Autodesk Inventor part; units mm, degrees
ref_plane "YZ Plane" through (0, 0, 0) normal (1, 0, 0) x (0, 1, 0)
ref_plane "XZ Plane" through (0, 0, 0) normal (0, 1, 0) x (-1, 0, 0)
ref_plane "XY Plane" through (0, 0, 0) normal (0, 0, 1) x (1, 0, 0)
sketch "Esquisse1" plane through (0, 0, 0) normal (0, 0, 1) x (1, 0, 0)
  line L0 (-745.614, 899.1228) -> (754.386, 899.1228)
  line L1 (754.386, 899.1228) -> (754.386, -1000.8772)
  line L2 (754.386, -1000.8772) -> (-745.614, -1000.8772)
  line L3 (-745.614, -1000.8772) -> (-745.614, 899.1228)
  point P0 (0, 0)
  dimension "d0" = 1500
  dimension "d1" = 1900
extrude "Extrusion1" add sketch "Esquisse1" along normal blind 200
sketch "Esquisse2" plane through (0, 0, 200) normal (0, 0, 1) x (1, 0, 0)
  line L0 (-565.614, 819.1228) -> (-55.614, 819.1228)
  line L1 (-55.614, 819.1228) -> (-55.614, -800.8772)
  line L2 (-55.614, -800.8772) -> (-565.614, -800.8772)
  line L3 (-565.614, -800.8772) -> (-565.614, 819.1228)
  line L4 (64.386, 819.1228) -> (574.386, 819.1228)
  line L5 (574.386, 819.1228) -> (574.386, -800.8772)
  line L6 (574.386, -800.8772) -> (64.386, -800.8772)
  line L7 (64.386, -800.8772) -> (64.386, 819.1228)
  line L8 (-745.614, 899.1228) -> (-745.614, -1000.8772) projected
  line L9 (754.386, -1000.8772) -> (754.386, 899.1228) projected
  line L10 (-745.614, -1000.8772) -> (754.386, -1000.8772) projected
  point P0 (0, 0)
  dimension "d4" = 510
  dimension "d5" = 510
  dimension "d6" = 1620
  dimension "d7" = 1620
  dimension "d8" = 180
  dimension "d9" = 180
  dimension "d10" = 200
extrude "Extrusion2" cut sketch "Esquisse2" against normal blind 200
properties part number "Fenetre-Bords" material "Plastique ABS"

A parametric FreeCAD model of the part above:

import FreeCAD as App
import Part
import Sketcher

V = App.Vector
Q = App.Units.Quantity

doc = App.newDocument("Part")
body = doc.addObject("PartDesign::Body", "Body")

# Sketch on XY plane
sketch1 = body.newObject("Sketcher::SketchObject", "Sketch")
sketch1.AttachmentSupport = (doc.getObject("XY_Plane"), [""])
sketch1.MapMode = "FlatFace"
sketch1.addGeometry([
    Part.LineSegment(V(754, 899, 0), V(-746, 899, 0)),
    Part.LineSegment(V(-746, 899, 0), V(-746, -1001, 0)),
    Part.LineSegment(V(-746, -1001, 0), V(754, -1001, 0)),
    Part.LineSegment(V(754, -1001, 0), V(754, 899, 0)),
], False)
sketch1.addConstraint([
    Sketcher.Constraint("Coincident", 0, 2, 1, 1),
    Sketcher.Constraint("Coincident", 1, 2, 2, 1),
    Sketcher.Constraint("Coincident", 2, 2, 3, 1),
    Sketcher.Constraint("Coincident", 3, 2, 0, 1),
    Sketcher.Constraint("Horizontal", 0),
    Sketcher.Constraint("Vertical", 1),
    Sketcher.Constraint("Horizontal", 2),
    Sketcher.Constraint("Vertical", 3),
    Sketcher.Constraint("DistanceX", 0, 2, 0, 1, Q("1500 mm")),
    Sketcher.Constraint("DistanceY", 1, 2, 1, 1, Q("1900 mm")),
    Sketcher.Constraint("DistanceX", 0, 2, -1, 1, Q("745.614 mm")),
    Sketcher.Constraint("DistanceY", -1, 1, 0, 2, Q("899.1228 mm")),
])
pad1 = body.newObject("PartDesign::Pad", "Pad")
pad1.Profile = sketch1
pad1.Length = 200

# Sketch on XY plane
sketch2 = body.newObject("Sketcher::SketchObject", "Sketch001")
sketch2.AttachmentSupport = (doc.getObject("XY_Plane"), [""])
sketch2.MapMode = "FlatFace"
sketch2.AttachmentOffset = App.Placement(V(0, 0, 200), App.Rotation())
sketch2.addGeometry([
    Part.LineSegment(V(-56, 819, 0), V(-566, 819, 0)),  # 0
    Part.LineSegment(V(-566, 819, 0), V(-566, -801, 0)),  # 1
    Part.LineSegment(V(-566, -801, 0), V(-56, -801, 0)),  # 2
    Part.LineSegment(V(-56, -801, 0), V(-56, 819, 0)),  # 3
    Part.LineSegment(V(574, 819, 0), V(64, 819, 0)),  # 4
    Part.LineSegment(V(64, 819, 0), V(64, -801, 0)),  # 5
    Part.LineSegment(V(64, -801, 0), V(574, -801, 0)),  # 6
    Part.LineSegment(V(574, -801, 0), V(574, 819, 0)),  # 7
], False)
sketch2.addConstraint([
    Sketcher.Constraint("Coincident", 0, 2, 1, 1),
    Sketcher.Constraint("Coincident", 1, 2, 2, 1),
    Sketcher.Constraint("Coincident", 2, 2, 3, 1),
    Sketcher.Constraint("Coincident", 3, 2, 0, 1),
    Sketcher.Constraint("Coincident", 4, 2, 5, 1),
    Sketcher.Constraint("Coincident", 5, 2, 6, 1),
    Sketcher.Constraint("Coincident", 6, 2, 7, 1),
    Sketcher.Constraint("Coincident", 7, 2, 4, 1),
    Sketcher.Constraint("Horizontal", 0),
    Sketcher.Constraint("Vertical", 1),
    Sketcher.Constraint("Horizontal", 2),
    Sketcher.Constraint("Vertical", 3),
    Sketcher.Constraint("Horizontal", 4),
    Sketcher.Constraint("Vertical", 5),
    Sketcher.Constraint("Horizontal", 6),
    Sketcher.Constraint("Vertical", 7),
    Sketcher.Constraint("Horizontal", 3, 2, 4, 2),
    Sketcher.Constraint("Horizontal", 2, 2, 5, 2),
    Sketcher.Constraint("Equal", 2, 4),
    Sketcher.Constraint("DistanceX", 0, 2, 0, 1, Q("510 mm")),
    Sketcher.Constraint("DistanceY", 1, 2, 1, 1, Q("1620 mm")),
    Sketcher.Constraint("DistanceX", 3, 2, 4, 2, Q("120 mm")),
    Sketcher.Constraint("DistanceX", 0, 2, -1, 1, Q("565.614 mm")),
    Sketcher.Constraint("DistanceY", -1, 1, 0, 2, Q("819.1228 mm")),
])
pocket1 = body.newObject("PartDesign::Pocket", "Pocket")
pocket1.Profile = sketch2
pocket1.Length = 200

doc.recompute()
